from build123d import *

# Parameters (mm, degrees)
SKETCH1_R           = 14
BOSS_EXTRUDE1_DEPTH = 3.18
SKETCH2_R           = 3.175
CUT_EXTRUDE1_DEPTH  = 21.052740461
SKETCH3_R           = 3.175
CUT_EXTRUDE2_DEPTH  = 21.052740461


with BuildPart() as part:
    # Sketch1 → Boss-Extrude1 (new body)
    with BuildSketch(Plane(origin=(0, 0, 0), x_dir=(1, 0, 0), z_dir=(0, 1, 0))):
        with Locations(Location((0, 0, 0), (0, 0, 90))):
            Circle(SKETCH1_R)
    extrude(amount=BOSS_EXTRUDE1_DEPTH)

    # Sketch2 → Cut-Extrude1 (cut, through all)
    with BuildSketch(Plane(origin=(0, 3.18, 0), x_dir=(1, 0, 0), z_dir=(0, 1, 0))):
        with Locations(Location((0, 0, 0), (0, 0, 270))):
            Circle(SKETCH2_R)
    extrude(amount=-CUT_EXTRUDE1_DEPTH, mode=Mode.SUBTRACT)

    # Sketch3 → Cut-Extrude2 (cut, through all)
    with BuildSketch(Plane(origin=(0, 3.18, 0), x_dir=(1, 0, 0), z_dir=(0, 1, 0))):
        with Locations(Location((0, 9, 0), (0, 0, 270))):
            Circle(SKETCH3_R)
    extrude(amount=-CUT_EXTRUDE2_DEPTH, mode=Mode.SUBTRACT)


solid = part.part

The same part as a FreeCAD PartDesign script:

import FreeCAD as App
import Part
import Sketcher
from FreeCAD import Vector

doc = App.newDocument("Part")
body = doc.addObject("PartDesign::Body", "Body")

sketch1 = body.newObject("Sketcher::SketchObject", "Sketch")
sketch1.AttachmentSupport = (doc.getObject("XZ_Plane"), [""])
sketch1.MapMode = "FlatFace"
sketch1.addGeometry(Part.Circle(Vector(0, 0, 0), Vector(0, 0, 1), 14), False)
sketch1.addConstraint([
    Sketcher.Constraint("Coincident", 0, 3, -1, 1),
    Sketcher.Constraint("Diameter", 0, 28.0),
])
pad1 = body.newObject("PartDesign::Pad", "Pad")
pad1.Profile = sketch1
pad1.Length = 3.18
pad1.Reversed = True

sketch2 = body.newObject("Sketcher::SketchObject", "Sketch001")
sketch2.AttachmentSupport = (doc.getObject("XZ_Plane"), [""])
sketch2.MapMode = "FlatFace"
sketch2.AttachmentOffset = App.Placement(Vector(0, 0, -3.18), App.Rotation())
sketch2.addGeometry(Part.Circle(Vector(0, 0, 0), Vector(0, 0, 1), 3.175), False)
sketch2.addConstraint([
    Sketcher.Constraint("Coincident", 0, 3, -1, 1),
    Sketcher.Constraint("Diameter", 0, 6.35),
])
pocket1 = body.newObject("PartDesign::Pocket", "Pocket")
pocket1.Profile = sketch2
pocket1.Type = "ThroughAll"
pocket1.Reversed = True

sketch3 = body.newObject("Sketcher::SketchObject", "Sketch002")
sketch3.AttachmentSupport = (doc.getObject("XZ_Plane"), [""])
sketch3.MapMode = "FlatFace"
sketch3.AttachmentOffset = App.Placement(Vector(0, 0, -3.18), App.Rotation())
sketch3.addGeometry(Part.Circle(Vector(0, -9, 0), Vector(0, 0, 1), 3.175), False)
sketch3.addConstraint([
    Sketcher.Constraint("PointOnObject", 0, 3, -2),
    Sketcher.Constraint("Diameter", 0, 6.35),
    Sketcher.Constraint("DistanceY", 0, 3, -1, 1, 9.0),
])
pocket2 = body.newObject("PartDesign::Pocket", "Pocket001")
pocket2.Profile = sketch3
pocket2.Type = "ThroughAll"
pocket2.Reversed = True

doc.recompute()
